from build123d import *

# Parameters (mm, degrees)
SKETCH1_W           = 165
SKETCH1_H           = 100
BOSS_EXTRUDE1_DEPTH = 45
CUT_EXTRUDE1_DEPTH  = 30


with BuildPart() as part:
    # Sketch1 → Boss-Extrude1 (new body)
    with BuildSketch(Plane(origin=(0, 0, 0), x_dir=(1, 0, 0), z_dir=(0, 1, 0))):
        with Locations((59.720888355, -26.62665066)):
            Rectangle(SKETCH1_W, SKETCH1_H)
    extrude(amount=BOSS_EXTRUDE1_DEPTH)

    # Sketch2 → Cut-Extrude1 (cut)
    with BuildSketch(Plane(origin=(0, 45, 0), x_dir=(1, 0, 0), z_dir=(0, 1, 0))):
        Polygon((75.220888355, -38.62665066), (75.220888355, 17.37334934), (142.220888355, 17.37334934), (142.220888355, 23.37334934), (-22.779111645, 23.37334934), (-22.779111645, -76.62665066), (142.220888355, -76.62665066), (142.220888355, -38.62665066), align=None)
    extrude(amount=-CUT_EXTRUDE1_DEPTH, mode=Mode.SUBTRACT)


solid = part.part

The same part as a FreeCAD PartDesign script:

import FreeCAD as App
import Part
import Sketcher
from FreeCAD import Vector


def add_polygon(sketch, points):
    """Adds a closed chain of lines whose ends are joined by coincident constraints."""
    first, n = sketch.GeometryCount, len(points)
    for a, b in zip(points, points[1:] + points[:1]):
        sketch.addGeometry(Part.LineSegment(App.Vector(*a, 0), App.Vector(*b, 0)), False)
    for i in range(n):
        sketch.addConstraint(Sketcher.Constraint("Coincident", first + i, 2, first + (i + 1) % n, 1))

doc = App.newDocument("Part")
params = doc.addObject("Spreadsheet::Sheet", "Params")
for row, (alias, value) in enumerate([
    ("sketch1_width", "165 mm"),
    ("sketch1_height", "100 mm"),
    ("pad1_length", "45 mm"),
    ("sketch2_width", "67 mm"),
    ("sketch2_width2", "165 mm"),
    ("sketch2_height", "56 mm"),
    ("sketch2_height2", "6 mm"),
    ("sketch2_height3", "100 mm"),
    ("pocket1_length", "30 mm"),
], start=1):
    params.set(f"A{row}", alias)
    params.set(f"B{row}", "=" + value)
    params.setAlias(f"B{row}", alias)

body = doc.addObject("PartDesign::Body", "Body")

# Sketch on XZ plane
sketch1 = body.newObject("Sketcher::SketchObject", "Sketch")
sketch1.AttachmentSupport = (doc.getObject("XZ_Plane"), [""])
sketch1.MapMode = "FlatFace"
add_polygon(sketch1, [(-23, -23), (-23, 77), (142, 77), (142, -23)])  # lines 0-3
sketch1.addConstraint([
    Sketcher.Constraint("Vertical", 0),
    Sketcher.Constraint("Horizontal", 1),
    Sketcher.Constraint("Vertical", 2),
    Sketcher.Constraint("Horizontal", 3),
    Sketcher.Constraint("DistanceX", 1, 1, 1, 2, 165.0),
    Sketcher.Constraint("DistanceY", 0, 1, 0, 2, 100.0),
    Sketcher.Constraint("DistanceX", 0, 2, -1, 1, 22.779112),
    Sketcher.Constraint("DistanceY", -1, 1, 0, 2, 76.626651),
])
sketch1.setExpression("Constraints[8]", "Params.sketch1_width")
sketch1.setExpression("Constraints[9]", "Params.sketch1_height")
pad1 = body.newObject("PartDesign::Pad", "Pad")
pad1.Profile = sketch1
pad1.setExpression("Length", "Params.pad1_length")
pad1.Reversed = True

# Sketch on XZ plane
sketch2 = body.newObject("Sketcher::SketchObject", "Sketch001")
sketch2.AttachmentSupport = (doc.getObject("XZ_Plane"), [""])
sketch2.MapMode = "FlatFace"
sketch2.AttachmentOffset = App.Placement(Vector(0, 0, -45), App.Rotation())
add_polygon(sketch2, [(75, 39), (75, -17), (142, -17), (142, -23), (-23, -23), (-23, 77), (142, 77), (142, 39)])  # lines 0-7
sketch2.addConstraint([
    Sketcher.Constraint("Vertical", 0),
    Sketcher.Constraint("Horizontal", 1),
    Sketcher.Constraint("Vertical", 2),
    Sketcher.Constraint("Horizontal", 3),
    Sketcher.Constraint("Vertical", 4),
    Sketcher.Constraint("Horizontal", 5),
    Sketcher.Constraint("Vertical", 6),
    Sketcher.Constraint("Horizontal", 7),
    Sketcher.Constraint("Vertical", 2, 2, 5, 2),
    Sketcher.Constraint("DistanceX", 1, 1, 1, 2, 67.0),
    Sketcher.Constraint("DistanceX", 3, 2, 3, 1, 165.0),
    Sketcher.Constraint("DistanceY", 0, 2, 0, 1, 56.0),
    Sketcher.Constraint("DistanceY", 2, 2, 2, 1, 6.0),
    Sketcher.Constraint("DistanceY", 4, 1, 4, 2, 100.0),
    Sketcher.Constraint("DistanceX", -1, 1, 0, 2, 75.220888),
    Sketcher.Constraint("DistanceY", 0, 2, -1, 1, 17.373349),
])
sketch2.setExpression("Constraints[17]", "Params.sketch2_width")
sketch2.setExpression("Constraints[18]", "Params.sketch2_width2")
sketch2.setExpression("Constraints[19]", "Params.sketch2_height")
sketch2.setExpression("Constraints[20]", "Params.sketch2_height2")
sketch2.setExpression("Constraints[21]", "Params.sketch2_height3")
pocket1 = body.newObject("PartDesign::Pocket", "Pocket")
pocket1.Profile = sketch2
pocket1.setExpression("Length", "Params.pocket1_length")
pocket1.Reversed = True

doc.recompute()
